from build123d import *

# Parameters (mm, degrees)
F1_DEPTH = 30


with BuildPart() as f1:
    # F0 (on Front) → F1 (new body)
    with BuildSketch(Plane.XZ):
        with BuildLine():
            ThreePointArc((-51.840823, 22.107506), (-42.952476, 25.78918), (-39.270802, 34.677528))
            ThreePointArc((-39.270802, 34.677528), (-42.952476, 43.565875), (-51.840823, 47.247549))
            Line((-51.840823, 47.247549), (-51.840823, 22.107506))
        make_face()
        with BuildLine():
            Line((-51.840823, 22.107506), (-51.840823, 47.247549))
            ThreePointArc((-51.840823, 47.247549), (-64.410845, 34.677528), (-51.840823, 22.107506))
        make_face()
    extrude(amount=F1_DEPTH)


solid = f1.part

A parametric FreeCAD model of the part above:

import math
import FreeCAD as App
import Part
import Sketcher
Q = App.Units.Quantity

doc = App.newDocument("Part")
params = doc.addObject("Spreadsheet::Sheet", "Params")
for row, (alias, value) in enumerate([
    ("pad1_length", "30 mm"),
], start=1):
    params.set(f"A{row}", alias)
    params.set(f"B{row}", "=" + value)
    params.setAlias(f"B{row}", alias)

body = doc.addObject("PartDesign::Body", "Body")

sketch1 = doc.addObject("Sketcher::SketchObject", "Sketch")
body.addObject(sketch1)
sketch1.AttachmentSupport = (doc.XZ_Plane, [""])
sketch1.MapMode = "FlatFace"
sketch1.addGeometry([
    Part.ArcOfCircle(Part.Circle(App.Vector(-51.840823, 34.677527, 0), App.Vector(0, 0, 1), 12.570021), math.radians(-89.999999), math.radians(0.000003)),
    Part.ArcOfCircle(Part.Circle(App.Vector(-51.840823, 34.677528, 0), App.Vector(0, 0, 1), 12.570021), math.radians(0.000001), math.radians(89.999999)),
    Part.ArcOfCircle(Part.Circle(App.Vector(-51.840823, 34.677527, 0), App.Vector(0, 0, 1), 12.570021), math.radians(89.999998), math.radians(270.000002)),
], False)
sketch1.addConstraint([
    Sketcher.Constraint("Tangent", 0, 2, 1, 1),
    Sketcher.Constraint("Tangent", 1, 2, 2, 1),
    Sketcher.Constraint("Tangent", 2, 2, 0, 1),
    Sketcher.Constraint("Horizontal", 2, 3, 0, 2),
    Sketcher.Constraint("Vertical", 2, 3, 1, 2),
    Sketcher.Constraint("Vertical", 1, 2, 2, 2),
    Sketcher.Constraint("Radius", 0, Q("12.570021 mm")),
    Sketcher.Constraint("DistanceY", -1, 1, 0, 2, Q("34.677528 mm")),
    Sketcher.Constraint("DistanceX", 0, 3, -1, 1, Q("51.840823 mm")),
])
pad1 = doc.addObject("PartDesign::Pad", "Pad")
body.addObject(pad1)
pad1.Profile = sketch1
pad1.setExpression("Length", "Params.pad1_length")

doc.recompute()
